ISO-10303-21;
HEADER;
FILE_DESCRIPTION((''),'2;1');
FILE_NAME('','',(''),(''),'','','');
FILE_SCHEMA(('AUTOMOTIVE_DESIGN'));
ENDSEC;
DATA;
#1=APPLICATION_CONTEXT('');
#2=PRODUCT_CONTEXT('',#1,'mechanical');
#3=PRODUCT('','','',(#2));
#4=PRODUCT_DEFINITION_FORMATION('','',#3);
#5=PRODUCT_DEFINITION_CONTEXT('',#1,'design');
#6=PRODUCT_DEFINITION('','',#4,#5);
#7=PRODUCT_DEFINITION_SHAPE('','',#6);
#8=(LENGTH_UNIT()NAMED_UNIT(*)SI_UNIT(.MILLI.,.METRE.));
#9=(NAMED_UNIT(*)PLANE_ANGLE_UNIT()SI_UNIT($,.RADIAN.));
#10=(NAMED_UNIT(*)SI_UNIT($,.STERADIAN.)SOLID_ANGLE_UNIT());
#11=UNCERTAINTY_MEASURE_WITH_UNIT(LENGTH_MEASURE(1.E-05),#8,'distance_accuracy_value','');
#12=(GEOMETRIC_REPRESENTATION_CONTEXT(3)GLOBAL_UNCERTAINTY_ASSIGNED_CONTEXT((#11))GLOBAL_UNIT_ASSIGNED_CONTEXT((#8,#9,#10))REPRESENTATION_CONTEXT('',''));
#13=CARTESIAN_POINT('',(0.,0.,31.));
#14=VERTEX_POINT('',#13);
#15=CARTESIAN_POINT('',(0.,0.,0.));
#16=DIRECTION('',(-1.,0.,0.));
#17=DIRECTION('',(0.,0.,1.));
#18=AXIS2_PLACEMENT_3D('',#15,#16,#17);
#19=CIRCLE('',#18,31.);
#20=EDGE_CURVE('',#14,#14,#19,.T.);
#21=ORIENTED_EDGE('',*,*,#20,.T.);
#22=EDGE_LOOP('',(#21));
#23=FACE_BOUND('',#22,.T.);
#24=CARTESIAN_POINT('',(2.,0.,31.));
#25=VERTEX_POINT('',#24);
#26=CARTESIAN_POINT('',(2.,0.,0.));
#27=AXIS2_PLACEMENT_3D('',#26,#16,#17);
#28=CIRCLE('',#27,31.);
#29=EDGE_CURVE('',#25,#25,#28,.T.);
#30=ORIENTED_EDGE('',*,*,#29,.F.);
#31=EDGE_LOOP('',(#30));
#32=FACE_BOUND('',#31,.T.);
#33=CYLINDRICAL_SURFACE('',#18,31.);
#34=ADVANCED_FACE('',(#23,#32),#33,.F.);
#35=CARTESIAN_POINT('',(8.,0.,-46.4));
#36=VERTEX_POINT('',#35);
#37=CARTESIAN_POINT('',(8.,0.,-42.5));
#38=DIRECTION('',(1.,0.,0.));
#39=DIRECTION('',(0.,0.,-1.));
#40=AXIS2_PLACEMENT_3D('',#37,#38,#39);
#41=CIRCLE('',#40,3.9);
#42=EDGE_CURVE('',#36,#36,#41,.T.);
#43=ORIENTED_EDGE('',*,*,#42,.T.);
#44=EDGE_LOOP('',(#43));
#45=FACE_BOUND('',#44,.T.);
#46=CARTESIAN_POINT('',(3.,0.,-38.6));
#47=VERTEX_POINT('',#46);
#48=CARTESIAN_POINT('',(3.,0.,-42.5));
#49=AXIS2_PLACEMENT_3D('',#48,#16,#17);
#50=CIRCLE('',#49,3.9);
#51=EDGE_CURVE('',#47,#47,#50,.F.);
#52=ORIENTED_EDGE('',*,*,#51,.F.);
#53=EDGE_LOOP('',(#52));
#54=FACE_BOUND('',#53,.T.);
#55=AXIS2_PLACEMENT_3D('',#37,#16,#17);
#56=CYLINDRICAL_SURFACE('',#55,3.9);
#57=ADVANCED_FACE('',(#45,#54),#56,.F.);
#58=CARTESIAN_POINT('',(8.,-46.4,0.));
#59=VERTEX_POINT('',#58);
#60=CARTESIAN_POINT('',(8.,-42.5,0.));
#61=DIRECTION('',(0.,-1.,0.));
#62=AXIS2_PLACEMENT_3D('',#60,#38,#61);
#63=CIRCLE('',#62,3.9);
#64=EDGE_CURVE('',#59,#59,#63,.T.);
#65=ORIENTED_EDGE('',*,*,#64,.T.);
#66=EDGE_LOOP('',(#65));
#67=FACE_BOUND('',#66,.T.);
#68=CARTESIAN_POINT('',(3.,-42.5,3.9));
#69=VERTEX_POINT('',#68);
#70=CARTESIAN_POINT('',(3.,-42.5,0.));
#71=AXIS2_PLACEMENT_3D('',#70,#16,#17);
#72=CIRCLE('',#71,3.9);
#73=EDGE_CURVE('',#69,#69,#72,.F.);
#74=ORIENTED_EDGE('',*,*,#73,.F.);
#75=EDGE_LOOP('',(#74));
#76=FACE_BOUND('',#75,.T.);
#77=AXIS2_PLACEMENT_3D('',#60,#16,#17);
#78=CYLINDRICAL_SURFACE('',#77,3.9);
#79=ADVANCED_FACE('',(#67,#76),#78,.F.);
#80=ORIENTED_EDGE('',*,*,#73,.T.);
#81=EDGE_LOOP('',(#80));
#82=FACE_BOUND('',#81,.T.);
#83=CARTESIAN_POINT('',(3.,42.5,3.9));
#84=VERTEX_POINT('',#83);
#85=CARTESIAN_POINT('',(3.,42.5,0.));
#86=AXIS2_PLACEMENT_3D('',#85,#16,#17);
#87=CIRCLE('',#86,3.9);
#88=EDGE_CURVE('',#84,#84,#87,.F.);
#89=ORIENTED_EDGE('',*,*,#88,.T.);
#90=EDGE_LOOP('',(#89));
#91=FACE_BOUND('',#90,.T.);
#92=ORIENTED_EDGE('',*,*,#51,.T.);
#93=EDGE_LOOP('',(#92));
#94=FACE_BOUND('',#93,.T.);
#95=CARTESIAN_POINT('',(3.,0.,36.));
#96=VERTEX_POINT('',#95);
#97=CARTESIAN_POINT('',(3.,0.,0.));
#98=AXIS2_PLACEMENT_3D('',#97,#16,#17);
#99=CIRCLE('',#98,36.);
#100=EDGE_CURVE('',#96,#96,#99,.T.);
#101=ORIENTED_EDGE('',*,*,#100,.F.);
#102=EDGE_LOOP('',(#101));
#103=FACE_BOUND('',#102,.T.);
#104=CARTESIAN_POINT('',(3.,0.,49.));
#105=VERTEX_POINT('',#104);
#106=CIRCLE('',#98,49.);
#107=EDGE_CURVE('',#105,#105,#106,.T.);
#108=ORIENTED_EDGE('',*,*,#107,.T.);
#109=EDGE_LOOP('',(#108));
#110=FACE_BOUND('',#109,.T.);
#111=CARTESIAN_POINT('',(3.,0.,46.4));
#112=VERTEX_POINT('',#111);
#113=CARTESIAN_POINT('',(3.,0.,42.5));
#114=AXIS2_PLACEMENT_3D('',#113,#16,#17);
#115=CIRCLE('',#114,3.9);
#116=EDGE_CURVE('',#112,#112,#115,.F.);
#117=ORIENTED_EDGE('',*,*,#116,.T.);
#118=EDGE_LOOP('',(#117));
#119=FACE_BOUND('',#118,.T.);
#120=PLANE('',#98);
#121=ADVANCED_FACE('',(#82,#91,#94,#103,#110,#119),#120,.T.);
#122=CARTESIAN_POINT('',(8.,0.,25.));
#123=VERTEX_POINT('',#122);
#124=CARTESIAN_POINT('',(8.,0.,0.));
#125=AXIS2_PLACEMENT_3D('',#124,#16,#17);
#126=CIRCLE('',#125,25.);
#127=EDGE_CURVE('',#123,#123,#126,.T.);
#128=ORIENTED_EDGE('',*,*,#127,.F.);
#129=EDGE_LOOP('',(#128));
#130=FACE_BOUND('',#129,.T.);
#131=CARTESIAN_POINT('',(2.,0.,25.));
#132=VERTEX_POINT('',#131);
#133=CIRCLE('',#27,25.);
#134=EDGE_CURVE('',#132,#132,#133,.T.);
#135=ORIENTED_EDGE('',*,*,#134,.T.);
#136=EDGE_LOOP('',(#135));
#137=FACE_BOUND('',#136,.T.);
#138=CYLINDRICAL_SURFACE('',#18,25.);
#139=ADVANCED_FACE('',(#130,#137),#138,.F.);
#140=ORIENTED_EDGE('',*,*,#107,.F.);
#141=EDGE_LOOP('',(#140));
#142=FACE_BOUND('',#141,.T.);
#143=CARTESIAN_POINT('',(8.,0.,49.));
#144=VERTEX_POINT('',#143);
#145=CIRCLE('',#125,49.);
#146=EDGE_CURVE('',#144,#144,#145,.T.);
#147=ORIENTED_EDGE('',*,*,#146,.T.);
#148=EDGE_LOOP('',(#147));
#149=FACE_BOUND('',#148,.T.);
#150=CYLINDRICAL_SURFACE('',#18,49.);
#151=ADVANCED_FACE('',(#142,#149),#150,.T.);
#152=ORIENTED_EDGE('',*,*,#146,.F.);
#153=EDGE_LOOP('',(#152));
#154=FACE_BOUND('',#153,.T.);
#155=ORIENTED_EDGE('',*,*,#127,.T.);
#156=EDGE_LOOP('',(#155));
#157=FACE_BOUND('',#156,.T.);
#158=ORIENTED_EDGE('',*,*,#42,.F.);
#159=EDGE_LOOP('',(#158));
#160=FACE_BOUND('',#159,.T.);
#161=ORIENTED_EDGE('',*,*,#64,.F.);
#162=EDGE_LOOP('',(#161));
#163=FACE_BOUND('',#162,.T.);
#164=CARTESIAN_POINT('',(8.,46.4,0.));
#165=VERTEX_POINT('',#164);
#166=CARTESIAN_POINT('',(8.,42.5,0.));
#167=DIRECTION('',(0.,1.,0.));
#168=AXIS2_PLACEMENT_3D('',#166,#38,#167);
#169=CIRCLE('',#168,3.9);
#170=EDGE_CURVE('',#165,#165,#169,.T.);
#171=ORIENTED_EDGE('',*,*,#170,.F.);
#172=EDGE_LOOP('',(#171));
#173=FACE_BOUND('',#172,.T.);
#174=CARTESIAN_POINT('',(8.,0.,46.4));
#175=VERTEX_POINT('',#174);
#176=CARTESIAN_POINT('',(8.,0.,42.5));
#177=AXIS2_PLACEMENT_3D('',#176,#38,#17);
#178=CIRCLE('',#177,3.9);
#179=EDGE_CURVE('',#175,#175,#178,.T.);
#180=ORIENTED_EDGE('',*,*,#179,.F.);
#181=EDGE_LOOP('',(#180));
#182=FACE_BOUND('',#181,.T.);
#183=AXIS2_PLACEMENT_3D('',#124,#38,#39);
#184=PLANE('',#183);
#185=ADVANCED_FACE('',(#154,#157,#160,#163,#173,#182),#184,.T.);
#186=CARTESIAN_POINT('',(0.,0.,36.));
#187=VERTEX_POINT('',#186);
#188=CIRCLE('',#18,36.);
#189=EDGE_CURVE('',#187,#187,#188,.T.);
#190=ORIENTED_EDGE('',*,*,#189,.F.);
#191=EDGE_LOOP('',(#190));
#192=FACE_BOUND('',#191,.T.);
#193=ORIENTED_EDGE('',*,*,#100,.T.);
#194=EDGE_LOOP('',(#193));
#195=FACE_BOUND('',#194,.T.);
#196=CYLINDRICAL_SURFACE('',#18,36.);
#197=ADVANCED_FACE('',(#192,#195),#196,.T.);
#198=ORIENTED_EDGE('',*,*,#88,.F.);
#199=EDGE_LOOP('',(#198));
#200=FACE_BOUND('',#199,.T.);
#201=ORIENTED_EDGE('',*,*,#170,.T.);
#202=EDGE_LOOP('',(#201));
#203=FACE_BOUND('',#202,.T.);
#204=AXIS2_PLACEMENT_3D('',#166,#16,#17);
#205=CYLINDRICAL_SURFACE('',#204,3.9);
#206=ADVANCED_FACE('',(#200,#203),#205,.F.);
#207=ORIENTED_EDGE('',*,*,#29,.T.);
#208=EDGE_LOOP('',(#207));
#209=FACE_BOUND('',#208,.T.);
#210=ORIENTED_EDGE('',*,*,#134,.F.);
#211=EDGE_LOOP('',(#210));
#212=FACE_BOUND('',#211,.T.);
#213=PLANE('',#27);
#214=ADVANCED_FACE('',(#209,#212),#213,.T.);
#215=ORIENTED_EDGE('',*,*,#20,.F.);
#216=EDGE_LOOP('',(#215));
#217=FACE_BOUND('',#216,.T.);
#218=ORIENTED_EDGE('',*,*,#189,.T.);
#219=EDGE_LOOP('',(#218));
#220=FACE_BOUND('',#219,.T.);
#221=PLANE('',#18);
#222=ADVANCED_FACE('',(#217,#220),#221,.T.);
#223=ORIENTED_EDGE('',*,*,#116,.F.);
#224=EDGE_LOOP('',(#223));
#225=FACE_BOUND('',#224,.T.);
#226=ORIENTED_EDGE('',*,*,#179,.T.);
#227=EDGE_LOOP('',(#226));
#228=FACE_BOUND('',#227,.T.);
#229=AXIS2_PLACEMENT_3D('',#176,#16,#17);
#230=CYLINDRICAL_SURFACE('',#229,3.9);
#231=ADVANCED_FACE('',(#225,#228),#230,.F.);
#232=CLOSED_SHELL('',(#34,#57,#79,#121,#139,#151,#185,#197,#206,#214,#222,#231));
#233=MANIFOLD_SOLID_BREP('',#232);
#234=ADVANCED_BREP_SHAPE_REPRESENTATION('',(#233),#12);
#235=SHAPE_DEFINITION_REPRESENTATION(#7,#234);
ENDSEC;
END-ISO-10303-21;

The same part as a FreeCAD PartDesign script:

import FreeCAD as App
import Part
import Sketcher
from FreeCAD import Vector
Q = App.Units.Quantity


def add_polygon(sketch, points):
    """Adds a closed chain of lines whose ends are joined by coincident constraints."""
    first, n = sketch.GeometryCount, len(points)
    for a, b in zip(points, points[1:] + points[:1]):
        sketch.addGeometry(Part.LineSegment(App.Vector(*a, 0), App.Vector(*b, 0)), False)
    for i in range(n):
        sketch.addConstraint(Sketcher.Constraint("Coincident", first + i, 2, first + (i + 1) % n, 1))

doc = App.newDocument("Part")
body = doc.addObject("PartDesign::Body", "Body")

# Sketch on XY plane
sketch1 = doc.addObject("Sketcher::SketchObject", "Sketch")
body.addObject(sketch1)
sketch1.AttachmentSupport = (doc.XY_Plane, [""])
sketch1.MapMode = "FlatFace"
add_polygon(sketch1, [(0, 31), (2, 31), (2, 25), (8, 25), (8, 49), (3, 49), (3, 36), (0, 36)])  # lines 0-7
sketch1.addConstraint(Sketcher.Constraint("Horizontal", 0))
sketch1.addConstraint(Sketcher.Constraint("Vertical", 1))
sketch1.addConstraint(Sketcher.Constraint("Horizontal", 2))
sketch1.addConstraint(Sketcher.Constraint("Vertical", 3))
sketch1.addConstraint(Sketcher.Constraint("Horizontal", 4))
sketch1.addConstraint(Sketcher.Constraint("Vertical", 5))
sketch1.addConstraint(Sketcher.Constraint("Horizontal", 6))
sketch1.addConstraint(Sketcher.Constraint("Vertical", 7))
sketch1.addConstraint(Sketcher.Constraint("PointOnObject", 6, 2, -2))
sketch1.addConstraint(Sketcher.Constraint("Equal", 2, 1))
sketch1.addConstraint(Sketcher.Constraint("Equal", 4, 7))
sketch1.addConstraint(Sketcher.Constraint("DistanceX", 0, 1, 0, 2, Q("2 mm")))
sketch1.addConstraint(Sketcher.Constraint("DistanceX", 2, 1, 2, 2, Q("6 mm")))
sketch1.addConstraint(Sketcher.Constraint("DistanceX", 4, 2, 4, 1, Q("5 mm")))
sketch1.addConstraint(Sketcher.Constraint("DistanceY", 3, 1, 3, 2, Q("24 mm")))
sketch1.addConstraint(Sketcher.Constraint("DistanceY", -1, 1, 0, 2, Q("31 mm")))
revolution = doc.addObject("PartDesign::Revolution", "Revolution")
body.addObject(revolution)
revolution.Profile = sketch1
revolution.ReferenceAxis = (sketch1, ["H_Axis"])
revolution.Angle = 360

# Sketch on YZ plane
sketch2 = doc.addObject("Sketcher::SketchObject", "Sketch001")
body.addObject(sketch2)
sketch2.AttachmentSupport = (doc.YZ_Plane, [""])
sketch2.MapMode = "FlatFace"
sketch2.AttachmentOffset = App.Placement(Vector(0, 0, -1), App.Rotation())
sketch2.addGeometry(Part.Circle(Vector(0, -42.5, 0), Vector(0, 0, 1), 3.9), False)
sketch2.addConstraint(Sketcher.Constraint("PointOnObject", 0, 3, -2))
sketch2.addConstraint(Sketcher.Constraint("Diameter", 0, Q("7.8 mm")))
sketch2.addConstraint(Sketcher.Constraint("DistanceY", 0, 3, -1, 1, Q("42.5 mm")))
pocket1 = doc.addObject("PartDesign::Pocket", "Pocket")
body.addObject(pocket1)
pocket1.Profile = sketch2
pocket1.Length = 10
pocket1.Reversed = True
doc.recompute()

polarpattern = doc.addObject("PartDesign::PolarPattern", "PolarPattern")
body.addObject(polarpattern)
polarpattern.Originals = [pocket1]
polarpattern.Axis = (doc.X_Axis, [""])
polarpattern.Angle = 360
polarpattern.Occurrences = 4
body.Tip = polarpattern

doc.recompute()
